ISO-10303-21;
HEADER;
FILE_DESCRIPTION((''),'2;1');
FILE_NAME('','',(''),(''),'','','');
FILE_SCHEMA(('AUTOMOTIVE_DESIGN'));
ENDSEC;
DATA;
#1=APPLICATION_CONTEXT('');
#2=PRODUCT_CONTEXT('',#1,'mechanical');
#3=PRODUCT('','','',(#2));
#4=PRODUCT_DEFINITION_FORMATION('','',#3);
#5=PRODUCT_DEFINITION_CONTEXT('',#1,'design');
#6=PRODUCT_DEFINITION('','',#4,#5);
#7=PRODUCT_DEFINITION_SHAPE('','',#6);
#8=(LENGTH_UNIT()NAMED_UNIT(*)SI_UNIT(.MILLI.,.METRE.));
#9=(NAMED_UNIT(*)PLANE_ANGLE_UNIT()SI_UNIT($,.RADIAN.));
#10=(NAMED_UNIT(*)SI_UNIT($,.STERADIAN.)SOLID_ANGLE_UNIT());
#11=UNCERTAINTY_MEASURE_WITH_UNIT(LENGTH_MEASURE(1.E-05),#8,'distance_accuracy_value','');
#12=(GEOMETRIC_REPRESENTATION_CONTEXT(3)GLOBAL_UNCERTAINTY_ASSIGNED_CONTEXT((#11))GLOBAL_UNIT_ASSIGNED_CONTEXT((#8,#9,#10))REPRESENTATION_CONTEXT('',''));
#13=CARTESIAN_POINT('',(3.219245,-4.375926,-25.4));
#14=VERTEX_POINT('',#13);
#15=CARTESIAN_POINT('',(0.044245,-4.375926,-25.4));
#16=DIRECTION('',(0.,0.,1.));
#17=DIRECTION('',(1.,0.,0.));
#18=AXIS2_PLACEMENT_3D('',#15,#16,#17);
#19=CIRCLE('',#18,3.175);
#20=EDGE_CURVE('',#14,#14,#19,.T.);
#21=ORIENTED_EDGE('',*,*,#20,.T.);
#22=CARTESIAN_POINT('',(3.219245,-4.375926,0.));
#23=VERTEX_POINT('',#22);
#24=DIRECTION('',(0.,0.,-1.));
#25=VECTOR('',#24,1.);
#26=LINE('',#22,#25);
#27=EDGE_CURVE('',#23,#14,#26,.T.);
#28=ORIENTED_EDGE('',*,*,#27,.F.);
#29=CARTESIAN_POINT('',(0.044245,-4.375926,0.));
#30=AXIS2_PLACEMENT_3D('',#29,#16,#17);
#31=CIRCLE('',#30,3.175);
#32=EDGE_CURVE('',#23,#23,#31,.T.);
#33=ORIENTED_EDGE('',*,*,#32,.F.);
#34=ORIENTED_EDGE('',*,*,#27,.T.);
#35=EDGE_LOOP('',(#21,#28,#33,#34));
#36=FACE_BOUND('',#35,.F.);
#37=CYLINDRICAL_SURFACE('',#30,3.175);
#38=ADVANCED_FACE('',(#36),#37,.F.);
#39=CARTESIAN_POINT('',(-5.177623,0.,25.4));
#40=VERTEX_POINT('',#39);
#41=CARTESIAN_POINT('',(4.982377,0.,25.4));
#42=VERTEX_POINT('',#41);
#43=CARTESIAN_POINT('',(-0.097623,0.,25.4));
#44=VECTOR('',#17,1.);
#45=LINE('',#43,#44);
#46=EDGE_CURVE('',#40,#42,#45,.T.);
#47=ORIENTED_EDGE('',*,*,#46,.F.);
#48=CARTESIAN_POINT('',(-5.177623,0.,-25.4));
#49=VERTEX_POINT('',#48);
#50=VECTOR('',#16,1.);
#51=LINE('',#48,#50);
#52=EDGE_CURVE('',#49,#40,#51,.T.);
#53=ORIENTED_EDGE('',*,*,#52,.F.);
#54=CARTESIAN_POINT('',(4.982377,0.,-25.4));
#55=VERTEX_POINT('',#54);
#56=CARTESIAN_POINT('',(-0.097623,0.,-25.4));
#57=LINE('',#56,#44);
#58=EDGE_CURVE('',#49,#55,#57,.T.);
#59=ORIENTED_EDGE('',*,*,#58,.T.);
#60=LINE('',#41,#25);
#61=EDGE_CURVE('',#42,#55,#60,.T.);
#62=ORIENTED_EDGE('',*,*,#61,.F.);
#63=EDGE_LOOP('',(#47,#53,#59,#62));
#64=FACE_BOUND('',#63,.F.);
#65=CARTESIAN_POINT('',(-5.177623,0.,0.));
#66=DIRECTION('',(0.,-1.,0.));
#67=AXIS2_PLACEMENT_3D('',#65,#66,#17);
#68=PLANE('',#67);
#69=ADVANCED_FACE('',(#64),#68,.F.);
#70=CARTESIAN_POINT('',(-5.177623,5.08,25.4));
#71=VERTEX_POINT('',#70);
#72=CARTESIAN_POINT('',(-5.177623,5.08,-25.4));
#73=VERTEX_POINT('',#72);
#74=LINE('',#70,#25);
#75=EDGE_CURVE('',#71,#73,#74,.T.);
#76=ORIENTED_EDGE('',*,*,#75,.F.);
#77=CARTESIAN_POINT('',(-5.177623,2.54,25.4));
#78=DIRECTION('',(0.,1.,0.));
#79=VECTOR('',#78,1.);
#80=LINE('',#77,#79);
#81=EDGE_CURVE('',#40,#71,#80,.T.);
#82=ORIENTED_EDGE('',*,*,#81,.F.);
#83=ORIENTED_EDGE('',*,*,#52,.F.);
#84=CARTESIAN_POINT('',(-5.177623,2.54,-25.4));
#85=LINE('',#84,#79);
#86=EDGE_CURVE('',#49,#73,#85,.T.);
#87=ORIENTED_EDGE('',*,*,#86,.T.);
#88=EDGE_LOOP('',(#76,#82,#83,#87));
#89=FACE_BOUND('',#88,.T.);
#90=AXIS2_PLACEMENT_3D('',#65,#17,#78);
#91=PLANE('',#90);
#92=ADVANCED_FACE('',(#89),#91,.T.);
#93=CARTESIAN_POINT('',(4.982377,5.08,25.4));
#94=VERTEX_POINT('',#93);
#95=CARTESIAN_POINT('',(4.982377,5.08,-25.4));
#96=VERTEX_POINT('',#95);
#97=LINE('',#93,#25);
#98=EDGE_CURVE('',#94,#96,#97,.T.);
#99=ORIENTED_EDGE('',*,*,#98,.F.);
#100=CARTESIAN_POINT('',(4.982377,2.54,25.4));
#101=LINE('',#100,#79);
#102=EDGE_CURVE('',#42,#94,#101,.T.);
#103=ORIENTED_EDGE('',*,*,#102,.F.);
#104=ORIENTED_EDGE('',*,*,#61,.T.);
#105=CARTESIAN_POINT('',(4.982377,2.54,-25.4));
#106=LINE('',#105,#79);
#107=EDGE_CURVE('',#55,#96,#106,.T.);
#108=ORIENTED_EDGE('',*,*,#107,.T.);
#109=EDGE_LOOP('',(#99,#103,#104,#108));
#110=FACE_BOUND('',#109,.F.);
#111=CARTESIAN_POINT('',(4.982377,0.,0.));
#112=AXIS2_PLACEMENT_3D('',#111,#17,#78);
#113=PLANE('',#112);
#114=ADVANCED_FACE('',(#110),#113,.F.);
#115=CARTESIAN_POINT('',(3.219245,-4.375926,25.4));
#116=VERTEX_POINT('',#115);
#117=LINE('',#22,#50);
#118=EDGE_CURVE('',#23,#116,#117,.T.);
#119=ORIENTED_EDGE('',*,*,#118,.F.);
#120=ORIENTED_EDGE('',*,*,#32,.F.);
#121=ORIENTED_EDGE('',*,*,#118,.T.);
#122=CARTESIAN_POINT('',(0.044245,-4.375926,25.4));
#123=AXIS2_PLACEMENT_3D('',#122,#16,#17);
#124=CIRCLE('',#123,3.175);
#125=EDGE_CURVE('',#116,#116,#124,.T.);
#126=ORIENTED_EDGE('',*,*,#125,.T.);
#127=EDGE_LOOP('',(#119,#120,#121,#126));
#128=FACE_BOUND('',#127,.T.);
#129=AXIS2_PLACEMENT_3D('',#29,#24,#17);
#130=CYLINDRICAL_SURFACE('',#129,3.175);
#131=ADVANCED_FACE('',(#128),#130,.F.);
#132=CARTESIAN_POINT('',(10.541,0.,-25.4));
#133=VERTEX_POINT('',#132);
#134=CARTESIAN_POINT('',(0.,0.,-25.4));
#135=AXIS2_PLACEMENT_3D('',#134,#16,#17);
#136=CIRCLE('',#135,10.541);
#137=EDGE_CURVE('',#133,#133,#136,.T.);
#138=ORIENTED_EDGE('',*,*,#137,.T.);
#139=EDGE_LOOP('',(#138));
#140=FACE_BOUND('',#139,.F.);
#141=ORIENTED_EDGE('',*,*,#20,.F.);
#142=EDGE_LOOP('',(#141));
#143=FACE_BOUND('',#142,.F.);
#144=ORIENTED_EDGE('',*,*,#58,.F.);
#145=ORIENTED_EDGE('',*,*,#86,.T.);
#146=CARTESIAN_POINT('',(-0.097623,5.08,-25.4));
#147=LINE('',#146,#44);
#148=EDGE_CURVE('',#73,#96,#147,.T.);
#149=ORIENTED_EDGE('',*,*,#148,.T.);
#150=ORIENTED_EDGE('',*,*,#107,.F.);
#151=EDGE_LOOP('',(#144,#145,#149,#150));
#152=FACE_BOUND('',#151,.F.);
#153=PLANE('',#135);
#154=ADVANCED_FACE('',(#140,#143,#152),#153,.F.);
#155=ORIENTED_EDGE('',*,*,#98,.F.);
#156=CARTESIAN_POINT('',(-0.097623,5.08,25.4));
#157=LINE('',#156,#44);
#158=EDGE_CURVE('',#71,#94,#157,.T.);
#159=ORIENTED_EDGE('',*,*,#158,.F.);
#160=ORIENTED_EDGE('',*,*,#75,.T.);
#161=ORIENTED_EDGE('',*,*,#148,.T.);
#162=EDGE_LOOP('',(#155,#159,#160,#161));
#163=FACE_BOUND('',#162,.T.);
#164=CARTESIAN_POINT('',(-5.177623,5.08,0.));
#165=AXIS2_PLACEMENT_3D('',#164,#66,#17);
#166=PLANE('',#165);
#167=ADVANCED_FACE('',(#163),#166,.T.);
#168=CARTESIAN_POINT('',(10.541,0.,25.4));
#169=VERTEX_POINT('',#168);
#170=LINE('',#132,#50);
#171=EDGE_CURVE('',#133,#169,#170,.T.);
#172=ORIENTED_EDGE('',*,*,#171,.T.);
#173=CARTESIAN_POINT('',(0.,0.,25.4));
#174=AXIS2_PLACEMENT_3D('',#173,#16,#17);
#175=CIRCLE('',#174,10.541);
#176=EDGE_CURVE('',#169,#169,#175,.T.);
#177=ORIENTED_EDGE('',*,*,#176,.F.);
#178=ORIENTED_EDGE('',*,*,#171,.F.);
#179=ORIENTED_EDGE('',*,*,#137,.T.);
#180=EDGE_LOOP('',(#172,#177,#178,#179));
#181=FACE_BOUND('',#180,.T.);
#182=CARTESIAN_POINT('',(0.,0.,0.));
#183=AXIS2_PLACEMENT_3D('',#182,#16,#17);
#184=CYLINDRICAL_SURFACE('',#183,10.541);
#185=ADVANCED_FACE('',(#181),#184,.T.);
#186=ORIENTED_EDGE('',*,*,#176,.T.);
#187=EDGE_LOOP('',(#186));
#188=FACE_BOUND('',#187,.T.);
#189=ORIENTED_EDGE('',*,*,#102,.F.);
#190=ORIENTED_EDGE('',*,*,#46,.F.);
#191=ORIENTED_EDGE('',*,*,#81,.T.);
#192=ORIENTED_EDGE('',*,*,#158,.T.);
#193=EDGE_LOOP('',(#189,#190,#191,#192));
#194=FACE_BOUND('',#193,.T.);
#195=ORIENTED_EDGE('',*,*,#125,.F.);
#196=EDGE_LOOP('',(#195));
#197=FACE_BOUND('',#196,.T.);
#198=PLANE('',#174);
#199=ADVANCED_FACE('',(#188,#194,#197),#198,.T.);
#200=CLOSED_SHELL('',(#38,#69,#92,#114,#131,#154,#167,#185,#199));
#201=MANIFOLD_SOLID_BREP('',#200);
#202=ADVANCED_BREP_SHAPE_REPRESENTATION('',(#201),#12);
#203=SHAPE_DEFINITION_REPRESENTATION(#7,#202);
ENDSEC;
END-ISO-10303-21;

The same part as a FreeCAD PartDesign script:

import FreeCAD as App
import Part
import Sketcher

V = App.Vector
Q = App.Units.Quantity


def add_polygon(sketch, points):
    """Adds a closed chain of lines whose ends are joined by coincident constraints."""
    first, n = sketch.GeometryCount, len(points)
    for a, b in zip(points, points[1:] + points[:1]):
        sketch.addGeometry(Part.LineSegment(App.Vector(*a, 0), App.Vector(*b, 0)), False)
    for i in range(n):
        sketch.addConstraint(Sketcher.Constraint("Coincident", first + i, 2, first + (i + 1) % n, 1))

doc = App.newDocument("Part")
body = doc.addObject("PartDesign::Body", "Body")

# Sketch on XY plane
sketch1 = body.newObject("Sketcher::SketchObject", "Sketch")
sketch1.AttachmentSupport = (doc.getObject("XY_Plane"), [""])
sketch1.MapMode = "FlatFace"
sketch1.addGeometry(Part.Circle(V(0, 0, 0), V(0, 0, 1), 11), False)
sketch1.addConstraint([
    Sketcher.Constraint("Coincident", 0, 3, -1, 1),
    Sketcher.Constraint("Diameter", 0, Q("0.83 in")),
])
pad1 = body.newObject("PartDesign::Pad", "Pad")
pad1.Profile = sketch1
pad1.Type = "TwoLengths"
pad1.Length = Q("1 in")
pad1.Length2 = Q("1 in")

# Sketch on XY plane
sketch2 = body.newObject("Sketcher::SketchObject", "Sketch001")
sketch2.AttachmentSupport = (doc.getObject("XY_Plane"), [""])
sketch2.MapMode = "FlatFace"
add_polygon(sketch2, [(-5, 5), (-5, 0), (5, 0), (5, 5)])  # lines 0-3
sketch2.addConstraint([
    Sketcher.Constraint("Vertical", 0),
    Sketcher.Constraint("Horizontal", 1),
    Sketcher.Constraint("Vertical", 2),
    Sketcher.Constraint("Horizontal", 3),
    Sketcher.Constraint("PointOnObject", 0, 2, -1),
    Sketcher.Constraint("DistanceX", 1, 1, 1, 2, Q("0.4 in")),
    Sketcher.Constraint("DistanceY", 0, 2, 0, 1, Q("0.2 in")),
    Sketcher.Constraint("DistanceX", 0, 2, -1, 1, Q("5.177623 mm")),
])
pocket1 = body.newObject("PartDesign::Pocket", "Pocket")
pocket1.Profile = sketch2
pocket1.Type = "ThroughAll"
pocket1.Midplane = True

# Sketch on XY plane
sketch3 = body.newObject("Sketcher::SketchObject", "Sketch002")
sketch3.AttachmentSupport = (doc.getObject("XY_Plane"), [""])
sketch3.MapMode = "FlatFace"
sketch3.addGeometry(Part.Circle(V(0, -4.4, 0), V(0, 0, 1), 3.2), False)
sketch3.addConstraint([
    Sketcher.Constraint("Diameter", 0, Q("0.25 in")),
    Sketcher.Constraint("DistanceX", -1, 1, 0, 3, Q("0.044245 mm")),
    Sketcher.Constraint("DistanceY", 0, 3, -1, 1, Q("4.375926 mm")),
])
pocket2 = body.newObject("PartDesign::Pocket", "Pocket001")
pocket2.Profile = sketch3
pocket2.Type = "ThroughAll"
pocket2.Midplane = True

doc.recompute()
